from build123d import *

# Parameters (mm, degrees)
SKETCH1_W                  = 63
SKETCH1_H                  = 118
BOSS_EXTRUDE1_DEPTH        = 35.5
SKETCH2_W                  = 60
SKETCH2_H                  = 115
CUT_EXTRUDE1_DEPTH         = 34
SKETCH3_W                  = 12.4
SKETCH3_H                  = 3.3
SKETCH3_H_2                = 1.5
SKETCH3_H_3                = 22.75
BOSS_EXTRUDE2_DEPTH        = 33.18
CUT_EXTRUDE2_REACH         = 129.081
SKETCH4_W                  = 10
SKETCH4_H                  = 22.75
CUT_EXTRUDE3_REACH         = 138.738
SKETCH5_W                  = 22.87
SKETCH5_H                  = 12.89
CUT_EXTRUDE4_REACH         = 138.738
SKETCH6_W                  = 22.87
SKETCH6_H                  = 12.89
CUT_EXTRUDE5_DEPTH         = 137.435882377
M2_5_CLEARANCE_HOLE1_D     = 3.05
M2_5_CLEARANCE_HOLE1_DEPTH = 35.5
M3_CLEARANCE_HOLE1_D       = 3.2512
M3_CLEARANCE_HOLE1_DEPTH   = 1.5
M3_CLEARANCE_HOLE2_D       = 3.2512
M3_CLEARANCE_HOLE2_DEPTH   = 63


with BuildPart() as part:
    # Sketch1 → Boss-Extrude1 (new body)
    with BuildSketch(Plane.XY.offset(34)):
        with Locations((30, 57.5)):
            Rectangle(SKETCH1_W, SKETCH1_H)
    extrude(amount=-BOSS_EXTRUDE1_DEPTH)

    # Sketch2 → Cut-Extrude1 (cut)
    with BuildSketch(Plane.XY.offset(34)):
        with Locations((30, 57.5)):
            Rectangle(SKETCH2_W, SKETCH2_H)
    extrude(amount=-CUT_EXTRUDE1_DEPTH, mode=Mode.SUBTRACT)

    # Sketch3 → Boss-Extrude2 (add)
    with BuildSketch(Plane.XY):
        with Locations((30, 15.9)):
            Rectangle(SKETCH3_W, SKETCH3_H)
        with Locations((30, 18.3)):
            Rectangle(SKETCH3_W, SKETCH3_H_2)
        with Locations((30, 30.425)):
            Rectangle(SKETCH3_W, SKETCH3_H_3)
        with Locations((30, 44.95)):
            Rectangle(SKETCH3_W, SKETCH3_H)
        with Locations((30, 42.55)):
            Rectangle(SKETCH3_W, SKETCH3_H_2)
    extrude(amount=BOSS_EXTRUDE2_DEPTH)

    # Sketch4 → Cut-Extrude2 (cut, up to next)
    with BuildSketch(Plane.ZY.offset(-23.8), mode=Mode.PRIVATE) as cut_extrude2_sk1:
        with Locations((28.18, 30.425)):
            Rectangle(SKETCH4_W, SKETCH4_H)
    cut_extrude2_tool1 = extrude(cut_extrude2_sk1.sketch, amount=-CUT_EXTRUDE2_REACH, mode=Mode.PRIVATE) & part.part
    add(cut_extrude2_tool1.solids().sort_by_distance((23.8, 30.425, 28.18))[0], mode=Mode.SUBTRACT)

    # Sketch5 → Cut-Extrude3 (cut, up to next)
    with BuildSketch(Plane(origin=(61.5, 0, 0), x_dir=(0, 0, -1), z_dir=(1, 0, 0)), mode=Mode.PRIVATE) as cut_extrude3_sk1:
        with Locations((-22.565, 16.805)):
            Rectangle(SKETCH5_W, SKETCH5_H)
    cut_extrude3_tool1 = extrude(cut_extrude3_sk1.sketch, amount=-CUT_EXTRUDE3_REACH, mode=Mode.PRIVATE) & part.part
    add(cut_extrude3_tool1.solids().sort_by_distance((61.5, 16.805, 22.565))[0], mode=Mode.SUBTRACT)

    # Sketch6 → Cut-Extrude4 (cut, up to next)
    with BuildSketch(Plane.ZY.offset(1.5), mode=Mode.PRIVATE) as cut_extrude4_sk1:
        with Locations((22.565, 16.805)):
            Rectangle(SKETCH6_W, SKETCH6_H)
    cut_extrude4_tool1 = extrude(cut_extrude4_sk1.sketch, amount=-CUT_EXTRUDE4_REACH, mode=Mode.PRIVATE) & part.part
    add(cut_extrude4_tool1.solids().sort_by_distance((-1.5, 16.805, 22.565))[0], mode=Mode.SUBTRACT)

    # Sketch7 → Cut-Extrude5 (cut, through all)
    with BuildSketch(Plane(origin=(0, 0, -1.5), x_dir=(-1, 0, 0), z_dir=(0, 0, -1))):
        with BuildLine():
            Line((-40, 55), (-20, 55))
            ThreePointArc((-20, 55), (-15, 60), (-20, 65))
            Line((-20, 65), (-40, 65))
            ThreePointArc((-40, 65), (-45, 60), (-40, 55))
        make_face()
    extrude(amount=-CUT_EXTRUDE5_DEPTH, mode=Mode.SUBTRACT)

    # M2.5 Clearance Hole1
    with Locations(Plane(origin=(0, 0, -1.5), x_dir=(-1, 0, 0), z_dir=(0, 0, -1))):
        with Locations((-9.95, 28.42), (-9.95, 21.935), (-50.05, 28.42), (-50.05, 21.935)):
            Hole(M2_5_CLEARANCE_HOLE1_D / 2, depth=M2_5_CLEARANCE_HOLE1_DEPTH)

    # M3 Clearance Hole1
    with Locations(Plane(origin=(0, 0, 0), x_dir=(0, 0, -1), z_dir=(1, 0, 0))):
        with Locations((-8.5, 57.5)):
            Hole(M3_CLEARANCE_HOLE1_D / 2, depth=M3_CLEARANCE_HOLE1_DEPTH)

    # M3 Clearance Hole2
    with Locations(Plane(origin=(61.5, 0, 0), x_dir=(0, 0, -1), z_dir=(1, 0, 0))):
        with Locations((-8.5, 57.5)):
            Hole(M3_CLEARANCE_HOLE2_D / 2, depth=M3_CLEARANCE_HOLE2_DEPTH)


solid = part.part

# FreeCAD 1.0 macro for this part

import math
import FreeCAD as App
import Part
import Sketcher
from FreeCAD import Vector


def add_polygon(sketch, points):
    """Adds a closed chain of lines whose ends are joined by coincident constraints."""
    first, n = sketch.GeometryCount, len(points)
    for a, b in zip(points, points[1:] + points[:1]):
        sketch.addGeometry(Part.LineSegment(App.Vector(*a, 0), App.Vector(*b, 0)), False)
    for i in range(n):
        sketch.addConstraint(Sketcher.Constraint("Coincident", first + i, 2, first + (i + 1) % n, 1))

doc = App.newDocument("Part")
body = doc.addObject("PartDesign::Body", "Body")

# Sketch on XY plane
sketch1 = body.newObject("Sketcher::SketchObject", "Sketch")
sketch1.AttachmentSupport = (doc.getObject("XY_Plane"), [""])
sketch1.MapMode = "FlatFace"
sketch1.AttachmentOffset = App.Placement(Vector(0, 0, 34), App.Rotation())
add_polygon(sketch1, [(-2, 116), (-2, -2), (62, -2), (62, 116)])  # lines 0-3
sketch1.addConstraint(Sketcher.Constraint("Vertical", 0))
sketch1.addConstraint(Sketcher.Constraint("Horizontal", 1))
sketch1.addConstraint(Sketcher.Constraint("Vertical", 2))
sketch1.addConstraint(Sketcher.Constraint("Horizontal", 3))
sketch1.addConstraint(Sketcher.Constraint("DistanceX", 1, 1, 1, 2, 63.0))
sketch1.addConstraint(Sketcher.Constraint("DistanceY", 0, 2, 0, 1, 118.0))
sketch1.addConstraint(Sketcher.Constraint("DistanceX", 0, 2, -1, 1, 1.5))
sketch1.addConstraint(Sketcher.Constraint("DistanceY", 0, 2, -1, 1, 1.5))
pad1 = body.newObject("PartDesign::Pad", "Pad")
pad1.Profile = sketch1
pad1.Length = 35.5
pad1.Reversed = True

# Sketch on XY plane
sketch2 = body.newObject("Sketcher::SketchObject", "Sketch001")
sketch2.AttachmentSupport = (doc.getObject("XY_Plane"), [""])
sketch2.MapMode = "FlatFace"
sketch2.AttachmentOffset = App.Placement(Vector(0, 0, 34), App.Rotation())
add_polygon(sketch2, [(0, 115), (0, 0), (60, 0), (60, 115)])  # lines 0-3
sketch2.addConstraint(Sketcher.Constraint("Vertical", 0))
sketch2.addConstraint(Sketcher.Constraint("Horizontal", 1))
sketch2.addConstraint(Sketcher.Constraint("Vertical", 2))
sketch2.addConstraint(Sketcher.Constraint("Horizontal", 3))
sketch2.addConstraint(Sketcher.Constraint("Coincident", 0, 2, -1, 1))
sketch2.addConstraint(Sketcher.Constraint("DistanceX", 1, 1, 1, 2, 60.0))
sketch2.addConstraint(Sketcher.Constraint("DistanceY", 0, 2, 0, 1, 115.0))
pocket1 = body.newObject("PartDesign::Pocket", "Pocket")
pocket1.Profile = sketch2
pocket1.Length = 34

# Sketch on XY plane
sketch3 = body.newObject("Sketcher::SketchObject", "Sketch002")
sketch3.AttachmentSupport = (doc.getObject("XY_Plane"), [""])
sketch3.MapMode = "FlatFace"
add_polygon(sketch3, [(24, 14), (36, 14), (36, 47), (24, 47)])  # lines 0-3
sketch3.addConstraint(Sketcher.Constraint("Horizontal", 0))
sketch3.addConstraint(Sketcher.Constraint("Vertical", 1))
sketch3.addConstraint(Sketcher.Constraint("Horizontal", 2))
sketch3.addConstraint(Sketcher.Constraint("Vertical", 3))
sketch3.addConstraint(Sketcher.Constraint("DistanceX", 0, 1, 0, 2, 12.4))
sketch3.addConstraint(Sketcher.Constraint("DistanceY", 1, 1, 1, 2, 32.35))
sketch3.addConstraint(Sketcher.Constraint("DistanceX", -1, 1, 0, 2, 36.2))
sketch3.addConstraint(Sketcher.Constraint("DistanceY", -1, 1, 1, 2, 46.6))
pad2 = body.newObject("PartDesign::Pad", "Pad001")
pad2.Profile = sketch3
pad2.Length = 33.18

# Sketch on YZ plane
sketch4 = body.newObject("Sketcher::SketchObject", "Sketch003")
sketch4.AttachmentSupport = (doc.getObject("YZ_Plane"), [""])
sketch4.MapMode = "FlatFace"
sketch4.AttachmentOffset = App.Placement(Vector(0, 0, 23.8), App.Rotation())
add_polygon(sketch4, [(42, 23), (19, 23), (19, 33), (42, 33)])  # lines 0-3
sketch4.addConstraint(Sketcher.Constraint("Horizontal", 0))
sketch4.addConstraint(Sketcher.Constraint("Vertical", 1))
sketch4.addConstraint(Sketcher.Constraint("Horizontal", 2))
sketch4.addConstraint(Sketcher.Constraint("Vertical", 3))
sketch4.addConstraint(Sketcher.Constraint("DistanceY", 1, 1, 1, 2, 10.0))
sketch4.addConstraint(Sketcher.Constraint("DistanceX", 0, 2, 0, 1, 22.75))
sketch4.addConstraint(Sketcher.Constraint("DistanceX", -1, 1, 2, 2, 41.8))
sketch4.addConstraint(Sketcher.Constraint("DistanceY", -1, 1, 0, 2, 23.18))
pocket2 = body.newObject("PartDesign::Pocket", "Pocket001")
pocket2.Profile = sketch4
pocket2.Type = "UpToFirst"
pocket2.Reversed = True

# Sketch on YZ plane
sketch5 = body.newObject("Sketcher::SketchObject", "Sketch004")
sketch5.AttachmentSupport = (doc.getObject("YZ_Plane"), [""])
sketch5.MapMode = "FlatFace"
sketch5.AttachmentOffset = App.Placement(Vector(0, 0, 61.5), App.Rotation())
add_polygon(sketch5, [(23, 34), (10, 34), (10, 11), (23, 11)])  # lines 0-3
sketch5.addConstraint(Sketcher.Constraint("Horizontal", 0))
sketch5.addConstraint(Sketcher.Constraint("Vertical", 1))
sketch5.addConstraint(Sketcher.Constraint("Horizontal", 2))
sketch5.addConstraint(Sketcher.Constraint("Vertical", 3))
sketch5.addConstraint(Sketcher.Constraint("DistanceY", -1, 1, 0, 2, 34.0))
sketch5.addConstraint(Sketcher.Constraint("DistanceX", 0, 2, 0, 1, 12.89))
sketch5.addConstraint(Sketcher.Constraint("DistanceY", 1, 2, 1, 1, 22.87))
sketch5.addConstraint(Sketcher.Constraint("DistanceX", -1, 1, 0, 2, 10.36))
pocket3 = body.newObject("PartDesign::Pocket", "Pocket002")
pocket3.Profile = sketch5
pocket3.Type = "UpToFirst"

# Sketch on YZ plane
sketch6 = body.newObject("Sketcher::SketchObject", "Sketch005")
sketch6.AttachmentSupport = (doc.getObject("YZ_Plane"), [""])
sketch6.MapMode = "FlatFace"
sketch6.AttachmentOffset = App.Placement(Vector(0, 0, -1.5), App.Rotation())
add_polygon(sketch6, [(23, 11), (10, 11), (10, 34), (23, 34)])  # lines 0-3
sketch6.addConstraint(Sketcher.Constraint("Horizontal", 0))
sketch6.addConstraint(Sketcher.Constraint("Vertical", 1))
sketch6.addConstraint(Sketcher.Constraint("Horizontal", 2))
sketch6.addConstraint(Sketcher.Constraint("Vertical", 3))
sketch6.addConstraint(Sketcher.Constraint("DistanceY", -1, 1, 1, 2, 34.0))
sketch6.addConstraint(Sketcher.Constraint("DistanceX", 0, 2, 0, 1, 12.89))
sketch6.addConstraint(Sketcher.Constraint("DistanceY", 1, 1, 1, 2, 22.87))
sketch6.addConstraint(Sketcher.Constraint("DistanceX", -1, 1, 0, 2, 10.36))
pocket4 = body.newObject("PartDesign::Pocket", "Pocket003")
pocket4.Profile = sketch6
pocket4.Type = "UpToFirst"
pocket4.Reversed = True

# Sketch on XY plane
sketch7 = body.newObject("Sketcher::SketchObject", "Sketch006")
sketch7.AttachmentSupport = (doc.getObject("XY_Plane"), [""])
sketch7.MapMode = "FlatFace"
sketch7.AttachmentOffset = App.Placement(Vector(0, 0, -1.5), App.Rotation())
sketch7.addGeometry(Part.LineSegment(Vector(40, 55, 0), Vector(20, 55, 0)), False)
sketch7.addGeometry(Part.ArcOfCircle(Part.Circle(Vector(20, 60, 0), Vector(0, 0, 1), 5), math.radians(90), math.radians(270)), False)
sketch7.addGeometry(Part.LineSegment(Vector(20, 65, 0), Vector(40, 65, 0)), False)
sketch7.addGeometry(Part.ArcOfCircle(Part.Circle(Vector(40, 60, 0), Vector(0, 0, 1), 5), math.radians(-90), math.radians(90)), False)
sketch7.addConstraint(Sketcher.Constraint("Tangent", 0, 2, 1, 2))
sketch7.addConstraint(Sketcher.Constraint("Tangent", 1, 1, 2, 1))
sketch7.addConstraint(Sketcher.Constraint("Tangent", 2, 2, 3, 2))
sketch7.addConstraint(Sketcher.Constraint("Tangent", 3, 1, 0, 1))
sketch7.addConstraint(Sketcher.Constraint("Horizontal", 0))
sketch7.addConstraint(Sketcher.Constraint("Horizontal", 2))
sketch7.addConstraint(Sketcher.Constraint("Radius", 1, 5.0))
sketch7.addConstraint(Sketcher.Constraint("DistanceX", 0, 2, 0, 1, 20.0))
sketch7.addConstraint(Sketcher.Constraint("DistanceX", -1, 1, 1, 3, 20.0))
sketch7.addConstraint(Sketcher.Constraint("DistanceY", -1, 1, 1, 3, 60.0))
pocket5 = body.newObject("PartDesign::Pocket", "Pocket004")
pocket5.Profile = sketch7
pocket5.Type = "ThroughAll"
pocket5.Reversed = True

# Sketch on XY plane
sketch8 = body.newObject("Sketcher::SketchObject", "Sketch007")
sketch8.AttachmentSupport = (doc.getObject("XY_Plane"), [""])
sketch8.MapMode = "FlatFace"
sketch8.AttachmentOffset = App.Placement(Vector(0, 0, -1.5), App.Rotation())
sketch8.addGeometry(Part.Circle(Vector(9.9, 28.4, 0), Vector(0, 0, 1), 1.5), False)
sketch8.addGeometry(Part.Circle(Vector(9.9, 21.9, 0), Vector(0, 0, 1), 1.5), False)
sketch8.addGeometry(Part.Circle(Vector(50, 28.4, 0), Vector(0, 0, 1), 1.5), False)
sketch8.addGeometry(Part.Circle(Vector(50, 21.9, 0), Vector(0, 0, 1), 1.5), False)
sketch8.addConstraint(Sketcher.Constraint("Equal", 0, 1))
sketch8.addConstraint(Sketcher.Constraint("Equal", 1, 2))
sketch8.addConstraint(Sketcher.Constraint("Equal", 2, 3))
sketch8.addConstraint(Sketcher.Constraint("Horizontal", 0, 3, 2, 3))
sketch8.addConstraint(Sketcher.Constraint("Horizontal", 1, 3, 3, 3))
sketch8.addConstraint(Sketcher.Constraint("Vertical", 0, 3, 1, 3))
sketch8.addConstraint(Sketcher.Constraint("Vertical", 2, 3, 3, 3))
sketch8.addConstraint(Sketcher.Constraint("Diameter", 0, 3.05))
sketch8.addConstraint(Sketcher.Constraint("DistanceX", 0, 3, 2, 3, 40.1))
sketch8.addConstraint(Sketcher.Constraint("DistanceX", -1, 1, 0, 3, 9.95))
sketch8.addConstraint(Sketcher.Constraint("DistanceY", -1, 1, 0, 3, 28.42))
sketch8.addConstraint(Sketcher.Constraint("DistanceY", -1, 1, 1, 3, 21.935))
doc.recompute()
hole = body.newObject("PartDesign::Hole", "Hole")
hole.Profile = sketch8
hole.ThreadType = "None"
hole.Diameter = 3.05
hole.DepthType = "Dimension"
hole.Depth = 35.5
hole.DrillPoint = "Flat"
hole.Reversed = True

# Sketch on YZ plane
sketch9 = body.newObject("Sketcher::SketchObject", "Sketch008")
sketch9.AttachmentSupport = (doc.getObject("YZ_Plane"), [""])
sketch9.MapMode = "FlatFace"
sketch9.addGeometry(Part.Circle(Vector(57.5, 8.5, 0), Vector(0, 0, 1), 1.6), False)
sketch9.addConstraint(Sketcher.Constraint("Diameter", 0, 3.2512))
sketch9.addConstraint(Sketcher.Constraint("DistanceX", -1, 1, 0, 3, 57.5))
sketch9.addConstraint(Sketcher.Constraint("DistanceY", -1, 1, 0, 3, 8.5))
doc.recompute()
hole2 = body.newObject("PartDesign::Hole", "Hole001")
hole2.Profile = sketch9
hole2.ThreadType = "None"
hole2.Diameter = 3.2512
hole2.DepthType = "Dimension"
hole2.Depth = 1.5
hole2.DrillPoint = "Flat"

# Sketch on YZ plane
sketch10 = body.newObject("Sketcher::SketchObject", "Sketch009")
sketch10.AttachmentSupport = (doc.getObject("YZ_Plane"), [""])
sketch10.MapMode = "FlatFace"
sketch10.AttachmentOffset = App.Placement(Vector(0, 0, 61.5), App.Rotation())
sketch10.addGeometry(Part.Circle(Vector(57.5, 8.5, 0), Vector(0, 0, 1), 1.6), False)
sketch10.addConstraint(Sketcher.Constraint("Diameter", 0, 3.2512))
sketch10.addConstraint(Sketcher.Constraint("DistanceX", -1, 1, 0, 3, 57.5))
sketch10.addConstraint(Sketcher.Constraint("DistanceY", -1, 1, 0, 3, 8.5))
doc.recompute()
hole3 = body.newObject("PartDesign::Hole", "Hole002")
hole3.Profile = sketch10
hole3.ThreadType = "None"
hole3.Diameter = 3.2512
hole3.DepthType = "Dimension"
hole3.Depth = 63
hole3.DrillPoint = "Flat"

doc.recompute()
